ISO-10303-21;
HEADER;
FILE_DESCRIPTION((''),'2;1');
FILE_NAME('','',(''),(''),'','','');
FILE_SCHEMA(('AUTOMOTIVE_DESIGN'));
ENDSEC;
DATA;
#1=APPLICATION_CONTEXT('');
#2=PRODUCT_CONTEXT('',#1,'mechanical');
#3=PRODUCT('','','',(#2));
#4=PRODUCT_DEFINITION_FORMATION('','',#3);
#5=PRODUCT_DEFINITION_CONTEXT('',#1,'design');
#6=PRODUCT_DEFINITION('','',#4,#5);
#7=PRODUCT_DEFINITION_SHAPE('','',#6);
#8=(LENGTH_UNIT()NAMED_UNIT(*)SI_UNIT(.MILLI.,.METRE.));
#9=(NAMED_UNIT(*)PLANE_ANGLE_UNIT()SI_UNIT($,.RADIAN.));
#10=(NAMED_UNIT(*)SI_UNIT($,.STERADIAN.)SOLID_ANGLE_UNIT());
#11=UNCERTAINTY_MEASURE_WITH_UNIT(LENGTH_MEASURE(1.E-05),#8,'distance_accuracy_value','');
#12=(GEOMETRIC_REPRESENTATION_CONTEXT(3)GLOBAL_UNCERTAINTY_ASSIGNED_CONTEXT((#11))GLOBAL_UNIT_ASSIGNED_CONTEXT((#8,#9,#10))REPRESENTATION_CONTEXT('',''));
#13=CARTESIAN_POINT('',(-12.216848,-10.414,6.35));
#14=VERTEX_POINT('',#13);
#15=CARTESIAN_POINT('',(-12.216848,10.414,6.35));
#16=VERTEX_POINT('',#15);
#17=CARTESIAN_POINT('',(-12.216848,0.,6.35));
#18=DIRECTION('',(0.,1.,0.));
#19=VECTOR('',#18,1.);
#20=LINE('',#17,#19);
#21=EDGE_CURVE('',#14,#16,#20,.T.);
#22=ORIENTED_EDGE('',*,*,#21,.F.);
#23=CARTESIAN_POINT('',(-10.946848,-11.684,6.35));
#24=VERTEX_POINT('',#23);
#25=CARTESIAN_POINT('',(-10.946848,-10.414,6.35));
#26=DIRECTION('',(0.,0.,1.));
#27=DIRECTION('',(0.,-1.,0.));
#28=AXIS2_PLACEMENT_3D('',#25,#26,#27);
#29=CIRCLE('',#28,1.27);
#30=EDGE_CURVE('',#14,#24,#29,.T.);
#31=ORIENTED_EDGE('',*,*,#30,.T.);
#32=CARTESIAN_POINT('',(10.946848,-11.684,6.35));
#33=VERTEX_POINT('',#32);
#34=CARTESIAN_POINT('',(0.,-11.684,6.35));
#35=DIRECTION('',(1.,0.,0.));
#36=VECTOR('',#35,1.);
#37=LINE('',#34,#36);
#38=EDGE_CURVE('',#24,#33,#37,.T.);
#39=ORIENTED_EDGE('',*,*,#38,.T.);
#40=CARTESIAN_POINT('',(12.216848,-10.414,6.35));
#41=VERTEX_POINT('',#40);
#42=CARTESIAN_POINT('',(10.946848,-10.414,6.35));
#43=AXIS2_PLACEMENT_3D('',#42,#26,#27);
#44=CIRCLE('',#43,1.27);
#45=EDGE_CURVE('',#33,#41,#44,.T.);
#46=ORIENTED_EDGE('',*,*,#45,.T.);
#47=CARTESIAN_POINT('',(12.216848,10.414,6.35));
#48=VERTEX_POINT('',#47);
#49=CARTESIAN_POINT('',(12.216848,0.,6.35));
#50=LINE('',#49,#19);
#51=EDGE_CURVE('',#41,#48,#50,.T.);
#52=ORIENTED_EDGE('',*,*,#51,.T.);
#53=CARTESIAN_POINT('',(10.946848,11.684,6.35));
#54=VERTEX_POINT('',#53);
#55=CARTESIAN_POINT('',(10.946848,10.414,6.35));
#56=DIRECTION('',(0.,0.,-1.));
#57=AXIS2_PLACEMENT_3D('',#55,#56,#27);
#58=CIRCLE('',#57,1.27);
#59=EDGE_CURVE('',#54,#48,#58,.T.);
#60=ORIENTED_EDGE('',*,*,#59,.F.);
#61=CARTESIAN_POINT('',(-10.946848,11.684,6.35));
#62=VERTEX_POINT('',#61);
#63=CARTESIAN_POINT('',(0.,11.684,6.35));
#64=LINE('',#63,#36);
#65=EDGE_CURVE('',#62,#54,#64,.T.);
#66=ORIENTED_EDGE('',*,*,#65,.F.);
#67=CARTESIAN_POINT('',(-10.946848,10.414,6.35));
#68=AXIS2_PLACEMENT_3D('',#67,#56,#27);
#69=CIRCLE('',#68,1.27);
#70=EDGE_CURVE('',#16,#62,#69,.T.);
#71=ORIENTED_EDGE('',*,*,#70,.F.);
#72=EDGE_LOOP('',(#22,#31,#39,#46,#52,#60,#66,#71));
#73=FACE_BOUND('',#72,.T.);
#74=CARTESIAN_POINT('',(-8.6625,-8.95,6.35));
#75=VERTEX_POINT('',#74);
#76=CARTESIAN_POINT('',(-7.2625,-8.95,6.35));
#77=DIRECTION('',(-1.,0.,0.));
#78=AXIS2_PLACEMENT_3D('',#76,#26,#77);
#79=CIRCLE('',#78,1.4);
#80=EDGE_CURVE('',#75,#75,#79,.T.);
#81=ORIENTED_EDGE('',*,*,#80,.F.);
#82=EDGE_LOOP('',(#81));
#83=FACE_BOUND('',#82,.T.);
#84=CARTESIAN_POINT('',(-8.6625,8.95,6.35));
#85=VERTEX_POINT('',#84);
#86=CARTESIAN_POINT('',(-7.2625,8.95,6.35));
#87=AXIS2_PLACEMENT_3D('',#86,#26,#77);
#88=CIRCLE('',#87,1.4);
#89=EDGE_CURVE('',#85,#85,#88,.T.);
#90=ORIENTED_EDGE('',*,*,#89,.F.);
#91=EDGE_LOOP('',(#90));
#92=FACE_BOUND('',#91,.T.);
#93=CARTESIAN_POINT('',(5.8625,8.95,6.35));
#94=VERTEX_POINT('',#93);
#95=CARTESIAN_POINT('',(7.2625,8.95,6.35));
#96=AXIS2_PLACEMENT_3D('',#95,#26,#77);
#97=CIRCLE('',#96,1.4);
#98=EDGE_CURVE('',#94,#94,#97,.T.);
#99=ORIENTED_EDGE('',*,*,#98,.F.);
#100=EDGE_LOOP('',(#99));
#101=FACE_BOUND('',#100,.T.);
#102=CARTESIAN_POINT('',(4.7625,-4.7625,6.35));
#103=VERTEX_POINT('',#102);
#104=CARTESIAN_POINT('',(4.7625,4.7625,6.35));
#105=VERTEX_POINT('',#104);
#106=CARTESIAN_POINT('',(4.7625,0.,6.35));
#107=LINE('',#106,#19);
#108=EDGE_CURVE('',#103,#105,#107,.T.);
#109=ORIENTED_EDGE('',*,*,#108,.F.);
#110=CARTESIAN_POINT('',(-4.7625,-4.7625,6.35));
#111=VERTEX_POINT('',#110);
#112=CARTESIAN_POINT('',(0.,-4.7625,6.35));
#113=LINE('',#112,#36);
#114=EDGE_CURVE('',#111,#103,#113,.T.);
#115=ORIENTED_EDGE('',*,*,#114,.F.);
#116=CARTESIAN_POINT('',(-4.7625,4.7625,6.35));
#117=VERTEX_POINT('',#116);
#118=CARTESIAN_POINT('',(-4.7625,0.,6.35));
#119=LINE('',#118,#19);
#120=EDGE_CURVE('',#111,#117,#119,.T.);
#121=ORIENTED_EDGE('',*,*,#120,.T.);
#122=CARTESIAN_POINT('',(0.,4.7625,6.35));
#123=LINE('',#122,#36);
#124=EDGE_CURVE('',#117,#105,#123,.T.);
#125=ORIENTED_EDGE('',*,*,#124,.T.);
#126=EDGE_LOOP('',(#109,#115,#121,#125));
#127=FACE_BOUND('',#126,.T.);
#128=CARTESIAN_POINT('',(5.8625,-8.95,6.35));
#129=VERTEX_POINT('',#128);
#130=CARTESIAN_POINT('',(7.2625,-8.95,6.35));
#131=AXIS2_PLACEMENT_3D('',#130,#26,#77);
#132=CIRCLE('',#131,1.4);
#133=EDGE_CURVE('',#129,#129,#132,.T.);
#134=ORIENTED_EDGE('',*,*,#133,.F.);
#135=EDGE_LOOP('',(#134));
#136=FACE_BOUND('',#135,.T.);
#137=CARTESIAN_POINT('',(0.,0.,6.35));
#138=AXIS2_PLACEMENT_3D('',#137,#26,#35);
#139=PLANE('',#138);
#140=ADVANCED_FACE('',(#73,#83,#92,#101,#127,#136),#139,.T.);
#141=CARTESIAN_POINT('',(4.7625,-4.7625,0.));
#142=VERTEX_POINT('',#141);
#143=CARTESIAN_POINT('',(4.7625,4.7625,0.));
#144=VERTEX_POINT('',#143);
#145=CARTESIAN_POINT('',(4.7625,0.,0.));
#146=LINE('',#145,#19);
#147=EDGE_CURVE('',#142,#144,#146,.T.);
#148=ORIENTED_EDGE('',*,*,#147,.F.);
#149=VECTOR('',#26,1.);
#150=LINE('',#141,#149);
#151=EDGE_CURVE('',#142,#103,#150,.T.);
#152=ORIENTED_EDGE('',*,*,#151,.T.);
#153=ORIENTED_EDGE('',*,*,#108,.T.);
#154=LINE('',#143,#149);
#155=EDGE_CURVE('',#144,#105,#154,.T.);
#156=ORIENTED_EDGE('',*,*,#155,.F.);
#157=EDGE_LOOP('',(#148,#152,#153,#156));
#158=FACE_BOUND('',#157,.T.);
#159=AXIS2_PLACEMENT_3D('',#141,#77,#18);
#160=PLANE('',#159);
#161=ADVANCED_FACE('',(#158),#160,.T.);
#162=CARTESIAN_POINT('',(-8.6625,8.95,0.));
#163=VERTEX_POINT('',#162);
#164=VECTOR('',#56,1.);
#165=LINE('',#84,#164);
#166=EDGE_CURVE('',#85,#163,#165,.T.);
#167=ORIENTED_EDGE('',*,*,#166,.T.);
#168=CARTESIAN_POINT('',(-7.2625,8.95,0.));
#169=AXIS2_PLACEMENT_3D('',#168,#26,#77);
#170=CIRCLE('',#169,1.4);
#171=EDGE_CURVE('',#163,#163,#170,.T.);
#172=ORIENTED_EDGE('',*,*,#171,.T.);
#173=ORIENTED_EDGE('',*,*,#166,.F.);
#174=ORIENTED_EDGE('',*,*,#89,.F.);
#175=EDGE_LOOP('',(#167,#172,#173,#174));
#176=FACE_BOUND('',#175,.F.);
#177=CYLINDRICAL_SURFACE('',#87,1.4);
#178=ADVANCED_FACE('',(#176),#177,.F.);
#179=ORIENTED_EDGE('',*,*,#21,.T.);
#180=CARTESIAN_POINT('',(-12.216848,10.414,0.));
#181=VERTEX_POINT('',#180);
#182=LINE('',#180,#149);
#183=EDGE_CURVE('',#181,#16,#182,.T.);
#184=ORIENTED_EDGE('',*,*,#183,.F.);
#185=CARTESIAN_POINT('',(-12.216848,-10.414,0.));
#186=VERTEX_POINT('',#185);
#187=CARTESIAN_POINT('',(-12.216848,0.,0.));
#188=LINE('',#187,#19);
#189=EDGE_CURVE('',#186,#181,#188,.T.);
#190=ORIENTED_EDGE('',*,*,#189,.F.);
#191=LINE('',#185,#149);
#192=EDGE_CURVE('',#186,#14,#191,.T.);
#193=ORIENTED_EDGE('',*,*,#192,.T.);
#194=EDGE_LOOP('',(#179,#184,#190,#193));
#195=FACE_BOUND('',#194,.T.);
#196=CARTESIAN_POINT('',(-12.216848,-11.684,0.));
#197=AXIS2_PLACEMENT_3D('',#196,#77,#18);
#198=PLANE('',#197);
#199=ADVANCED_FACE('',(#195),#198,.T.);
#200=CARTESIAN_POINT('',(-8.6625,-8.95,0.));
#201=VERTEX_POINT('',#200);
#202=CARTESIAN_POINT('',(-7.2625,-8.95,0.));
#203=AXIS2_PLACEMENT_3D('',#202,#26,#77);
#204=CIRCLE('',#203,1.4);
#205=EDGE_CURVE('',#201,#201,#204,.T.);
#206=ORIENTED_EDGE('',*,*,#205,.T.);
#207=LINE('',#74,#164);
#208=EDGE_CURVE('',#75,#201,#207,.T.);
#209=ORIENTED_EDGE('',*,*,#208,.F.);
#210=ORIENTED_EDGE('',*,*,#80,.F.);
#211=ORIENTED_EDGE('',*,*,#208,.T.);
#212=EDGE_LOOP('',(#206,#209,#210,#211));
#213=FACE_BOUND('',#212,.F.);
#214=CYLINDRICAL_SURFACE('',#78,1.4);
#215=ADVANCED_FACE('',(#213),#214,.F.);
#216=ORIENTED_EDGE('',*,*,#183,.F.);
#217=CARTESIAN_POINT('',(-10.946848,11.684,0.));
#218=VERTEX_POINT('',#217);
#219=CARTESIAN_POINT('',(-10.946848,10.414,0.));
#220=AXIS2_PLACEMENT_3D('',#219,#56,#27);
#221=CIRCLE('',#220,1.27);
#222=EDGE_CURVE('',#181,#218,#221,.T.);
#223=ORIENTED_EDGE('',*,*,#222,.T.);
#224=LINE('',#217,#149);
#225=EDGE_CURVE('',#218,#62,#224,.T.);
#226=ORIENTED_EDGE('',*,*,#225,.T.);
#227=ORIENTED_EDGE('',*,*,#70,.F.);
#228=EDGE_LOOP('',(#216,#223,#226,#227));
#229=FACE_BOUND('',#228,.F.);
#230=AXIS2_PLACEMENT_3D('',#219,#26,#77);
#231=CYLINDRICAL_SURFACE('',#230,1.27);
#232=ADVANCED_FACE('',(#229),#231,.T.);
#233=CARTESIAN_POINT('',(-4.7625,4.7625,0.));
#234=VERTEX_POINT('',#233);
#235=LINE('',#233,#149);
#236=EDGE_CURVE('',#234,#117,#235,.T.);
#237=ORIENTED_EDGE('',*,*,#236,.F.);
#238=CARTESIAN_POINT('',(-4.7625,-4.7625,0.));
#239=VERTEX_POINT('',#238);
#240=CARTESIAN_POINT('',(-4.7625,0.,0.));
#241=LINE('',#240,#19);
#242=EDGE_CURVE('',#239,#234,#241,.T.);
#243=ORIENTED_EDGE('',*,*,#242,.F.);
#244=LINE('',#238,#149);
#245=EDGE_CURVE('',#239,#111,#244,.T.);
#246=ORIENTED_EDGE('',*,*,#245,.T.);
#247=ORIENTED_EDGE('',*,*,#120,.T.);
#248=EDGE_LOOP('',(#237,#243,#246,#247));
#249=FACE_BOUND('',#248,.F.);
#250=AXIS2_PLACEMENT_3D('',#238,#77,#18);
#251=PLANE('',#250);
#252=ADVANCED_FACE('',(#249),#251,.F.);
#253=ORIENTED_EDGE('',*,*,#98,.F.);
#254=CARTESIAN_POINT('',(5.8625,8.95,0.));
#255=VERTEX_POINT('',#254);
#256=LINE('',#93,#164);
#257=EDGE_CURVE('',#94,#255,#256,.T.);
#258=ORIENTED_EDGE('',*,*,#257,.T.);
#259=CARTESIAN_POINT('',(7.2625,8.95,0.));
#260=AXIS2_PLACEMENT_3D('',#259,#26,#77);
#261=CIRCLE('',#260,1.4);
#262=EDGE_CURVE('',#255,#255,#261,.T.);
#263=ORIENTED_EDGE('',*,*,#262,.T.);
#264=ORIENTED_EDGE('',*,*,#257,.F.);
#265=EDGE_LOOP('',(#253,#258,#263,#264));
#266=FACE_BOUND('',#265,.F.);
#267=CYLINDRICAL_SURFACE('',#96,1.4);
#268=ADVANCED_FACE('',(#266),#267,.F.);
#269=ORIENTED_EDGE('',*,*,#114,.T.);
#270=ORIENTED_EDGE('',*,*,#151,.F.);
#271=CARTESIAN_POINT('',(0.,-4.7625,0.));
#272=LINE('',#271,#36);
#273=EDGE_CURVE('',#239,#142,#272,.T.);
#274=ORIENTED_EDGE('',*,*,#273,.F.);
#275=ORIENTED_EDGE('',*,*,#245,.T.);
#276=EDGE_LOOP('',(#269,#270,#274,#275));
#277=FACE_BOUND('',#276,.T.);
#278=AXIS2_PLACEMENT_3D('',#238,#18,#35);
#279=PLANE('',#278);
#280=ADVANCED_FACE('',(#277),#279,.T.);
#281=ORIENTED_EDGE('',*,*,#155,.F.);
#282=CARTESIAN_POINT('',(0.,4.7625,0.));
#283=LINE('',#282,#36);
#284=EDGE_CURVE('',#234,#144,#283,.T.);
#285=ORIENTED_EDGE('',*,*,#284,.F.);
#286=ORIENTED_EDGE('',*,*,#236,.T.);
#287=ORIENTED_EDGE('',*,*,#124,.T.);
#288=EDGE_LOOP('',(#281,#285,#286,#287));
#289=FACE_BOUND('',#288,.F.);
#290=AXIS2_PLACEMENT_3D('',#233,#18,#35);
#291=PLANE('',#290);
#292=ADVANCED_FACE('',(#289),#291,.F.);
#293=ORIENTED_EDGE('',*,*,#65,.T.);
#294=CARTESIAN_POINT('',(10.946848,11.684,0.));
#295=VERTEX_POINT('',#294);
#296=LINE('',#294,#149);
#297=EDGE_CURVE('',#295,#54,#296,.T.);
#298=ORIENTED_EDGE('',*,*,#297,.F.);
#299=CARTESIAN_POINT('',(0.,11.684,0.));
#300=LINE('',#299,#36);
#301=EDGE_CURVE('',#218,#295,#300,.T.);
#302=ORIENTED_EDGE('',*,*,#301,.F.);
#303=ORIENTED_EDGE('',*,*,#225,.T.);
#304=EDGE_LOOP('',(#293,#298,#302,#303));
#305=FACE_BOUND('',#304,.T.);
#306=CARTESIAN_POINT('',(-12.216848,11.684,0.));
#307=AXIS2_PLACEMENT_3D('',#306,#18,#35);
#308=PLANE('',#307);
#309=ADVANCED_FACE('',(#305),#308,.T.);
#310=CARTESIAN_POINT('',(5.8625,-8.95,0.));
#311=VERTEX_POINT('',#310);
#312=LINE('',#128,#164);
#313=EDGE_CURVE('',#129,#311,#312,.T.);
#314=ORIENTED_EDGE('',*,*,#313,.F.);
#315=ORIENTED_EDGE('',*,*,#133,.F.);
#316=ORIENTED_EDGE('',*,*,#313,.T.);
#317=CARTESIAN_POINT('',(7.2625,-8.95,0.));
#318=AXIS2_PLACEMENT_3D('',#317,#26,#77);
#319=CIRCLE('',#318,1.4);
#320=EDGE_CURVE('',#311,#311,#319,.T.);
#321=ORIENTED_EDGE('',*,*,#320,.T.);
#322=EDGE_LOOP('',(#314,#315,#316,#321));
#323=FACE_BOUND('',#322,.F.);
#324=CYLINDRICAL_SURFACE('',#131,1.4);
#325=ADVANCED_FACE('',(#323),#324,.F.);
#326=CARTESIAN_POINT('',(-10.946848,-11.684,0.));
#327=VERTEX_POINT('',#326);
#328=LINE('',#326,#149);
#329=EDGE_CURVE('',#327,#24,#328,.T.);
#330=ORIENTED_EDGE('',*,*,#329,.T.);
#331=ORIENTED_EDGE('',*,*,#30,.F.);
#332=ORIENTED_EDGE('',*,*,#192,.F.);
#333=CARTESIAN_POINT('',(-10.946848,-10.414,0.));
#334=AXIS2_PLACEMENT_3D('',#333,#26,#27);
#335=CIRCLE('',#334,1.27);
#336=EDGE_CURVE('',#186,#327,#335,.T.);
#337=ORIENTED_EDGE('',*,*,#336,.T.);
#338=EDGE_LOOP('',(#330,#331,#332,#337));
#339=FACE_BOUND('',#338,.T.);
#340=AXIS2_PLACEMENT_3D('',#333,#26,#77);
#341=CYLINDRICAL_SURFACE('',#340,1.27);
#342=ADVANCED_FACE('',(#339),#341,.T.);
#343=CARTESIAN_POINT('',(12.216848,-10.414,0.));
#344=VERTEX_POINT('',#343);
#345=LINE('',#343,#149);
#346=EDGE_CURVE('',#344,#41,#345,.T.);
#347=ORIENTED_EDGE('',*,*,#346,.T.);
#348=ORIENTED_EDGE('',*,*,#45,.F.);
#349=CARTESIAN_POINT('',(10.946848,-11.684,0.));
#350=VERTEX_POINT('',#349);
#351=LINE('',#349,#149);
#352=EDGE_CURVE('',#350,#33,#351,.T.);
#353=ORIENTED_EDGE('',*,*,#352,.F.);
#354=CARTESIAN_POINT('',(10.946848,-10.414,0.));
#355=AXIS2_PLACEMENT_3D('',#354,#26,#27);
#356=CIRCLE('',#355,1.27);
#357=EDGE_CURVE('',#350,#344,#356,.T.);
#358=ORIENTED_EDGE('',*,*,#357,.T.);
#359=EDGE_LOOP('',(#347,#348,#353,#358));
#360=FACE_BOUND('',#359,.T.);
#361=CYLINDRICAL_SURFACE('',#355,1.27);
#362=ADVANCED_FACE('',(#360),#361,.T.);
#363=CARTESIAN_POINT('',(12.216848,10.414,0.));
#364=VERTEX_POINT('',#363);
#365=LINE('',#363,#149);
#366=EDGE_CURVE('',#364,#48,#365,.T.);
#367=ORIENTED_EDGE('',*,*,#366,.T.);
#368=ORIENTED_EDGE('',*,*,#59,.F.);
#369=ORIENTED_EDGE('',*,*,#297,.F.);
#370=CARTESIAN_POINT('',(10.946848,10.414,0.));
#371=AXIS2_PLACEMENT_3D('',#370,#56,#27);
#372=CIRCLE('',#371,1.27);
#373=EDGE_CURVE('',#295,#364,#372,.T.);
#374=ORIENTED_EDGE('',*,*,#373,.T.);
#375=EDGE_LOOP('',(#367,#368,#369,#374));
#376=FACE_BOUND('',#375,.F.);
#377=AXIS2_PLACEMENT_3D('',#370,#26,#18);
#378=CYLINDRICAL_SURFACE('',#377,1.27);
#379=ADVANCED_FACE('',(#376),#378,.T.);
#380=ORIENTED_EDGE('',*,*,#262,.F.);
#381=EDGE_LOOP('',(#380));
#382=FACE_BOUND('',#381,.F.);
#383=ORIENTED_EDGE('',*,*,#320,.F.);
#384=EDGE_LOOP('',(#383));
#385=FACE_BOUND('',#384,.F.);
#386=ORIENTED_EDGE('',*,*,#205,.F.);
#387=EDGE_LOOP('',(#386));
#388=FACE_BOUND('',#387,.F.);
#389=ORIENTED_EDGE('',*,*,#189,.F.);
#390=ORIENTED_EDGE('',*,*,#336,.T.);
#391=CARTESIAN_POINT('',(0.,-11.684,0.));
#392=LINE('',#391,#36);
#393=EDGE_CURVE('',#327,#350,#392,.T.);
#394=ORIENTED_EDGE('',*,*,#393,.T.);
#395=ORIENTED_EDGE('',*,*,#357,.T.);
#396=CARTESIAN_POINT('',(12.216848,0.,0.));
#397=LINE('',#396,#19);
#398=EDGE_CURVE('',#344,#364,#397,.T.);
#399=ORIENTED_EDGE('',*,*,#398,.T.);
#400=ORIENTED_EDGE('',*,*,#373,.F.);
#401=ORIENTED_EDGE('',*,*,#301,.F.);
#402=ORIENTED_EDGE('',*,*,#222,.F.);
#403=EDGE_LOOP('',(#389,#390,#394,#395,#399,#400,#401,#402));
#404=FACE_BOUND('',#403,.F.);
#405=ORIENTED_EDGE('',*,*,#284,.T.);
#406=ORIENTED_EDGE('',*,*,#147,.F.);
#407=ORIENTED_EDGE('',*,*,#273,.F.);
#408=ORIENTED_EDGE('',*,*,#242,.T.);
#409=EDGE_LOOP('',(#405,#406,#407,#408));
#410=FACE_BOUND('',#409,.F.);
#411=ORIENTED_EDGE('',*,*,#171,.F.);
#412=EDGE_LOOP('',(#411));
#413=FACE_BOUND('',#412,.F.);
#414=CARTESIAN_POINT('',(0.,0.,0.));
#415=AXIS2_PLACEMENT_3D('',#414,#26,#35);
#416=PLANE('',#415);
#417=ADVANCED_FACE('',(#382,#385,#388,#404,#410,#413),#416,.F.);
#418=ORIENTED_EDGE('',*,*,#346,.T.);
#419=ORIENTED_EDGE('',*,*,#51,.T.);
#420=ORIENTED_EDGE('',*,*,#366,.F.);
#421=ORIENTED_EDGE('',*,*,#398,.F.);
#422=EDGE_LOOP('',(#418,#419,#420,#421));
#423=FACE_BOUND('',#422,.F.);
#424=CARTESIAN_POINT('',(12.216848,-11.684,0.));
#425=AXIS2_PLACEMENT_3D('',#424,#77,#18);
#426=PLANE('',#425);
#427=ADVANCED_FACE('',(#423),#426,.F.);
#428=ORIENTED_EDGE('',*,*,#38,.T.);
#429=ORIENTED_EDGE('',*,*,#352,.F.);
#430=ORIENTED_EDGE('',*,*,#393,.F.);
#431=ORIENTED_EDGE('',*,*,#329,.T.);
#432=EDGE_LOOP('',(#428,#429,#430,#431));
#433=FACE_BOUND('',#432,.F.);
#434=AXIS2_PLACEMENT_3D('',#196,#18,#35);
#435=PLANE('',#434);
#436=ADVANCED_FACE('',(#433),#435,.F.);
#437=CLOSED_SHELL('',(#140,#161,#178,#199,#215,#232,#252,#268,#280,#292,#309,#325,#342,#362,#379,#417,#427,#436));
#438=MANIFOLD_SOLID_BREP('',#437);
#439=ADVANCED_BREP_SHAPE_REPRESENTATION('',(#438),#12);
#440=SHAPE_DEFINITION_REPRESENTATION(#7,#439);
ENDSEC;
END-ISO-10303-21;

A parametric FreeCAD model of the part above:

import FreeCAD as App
import Part
import Sketcher

V = App.Vector
Q = App.Units.Quantity


def edges_at(feature, points):
    """Names of the edges that pass closest to the given points."""
    edges = feature.Shape.Edges
    near = lambda p: min(range(len(edges)), key=lambda i: edges[i].distToShape(Part.Vertex(*p))[0])
    return sorted({f"Edge{near(p) + 1}" for p in points})


def add_polygon(sketch, points):
    """Adds a closed chain of lines whose ends are joined by coincident constraints."""
    first, n = sketch.GeometryCount, len(points)
    for a, b in zip(points, points[1:] + points[:1]):
        sketch.addGeometry(Part.LineSegment(App.Vector(*a, 0), App.Vector(*b, 0)), False)
    for i in range(n):
        sketch.addConstraint(Sketcher.Constraint("Coincident", first + i, 2, first + (i + 1) % n, 1))

doc = App.newDocument("Part")
body = doc.addObject("PartDesign::Body", "Body")

# Sketch on XY plane
sketch1 = body.newObject("Sketcher::SketchObject", "Sketch")
sketch1.AttachmentSupport = (doc.getObject("XY_Plane"), [""])
sketch1.MapMode = "FlatFace"
add_polygon(sketch1, [(-12, 12), (-12, -12), (12, -12), (12, 12)])  # lines 0-3
add_polygon(sketch1, [(5, -5), (-5, -5), (-5, 5), (5, 5)])  # lines 4-7
sketch1.addConstraint([
    Sketcher.Constraint("Vertical", 0),
    Sketcher.Constraint("Horizontal", 1),
    Sketcher.Constraint("Vertical", 2),
    Sketcher.Constraint("Horizontal", 3),
    Sketcher.Constraint("Horizontal", 4),
    Sketcher.Constraint("Vertical", 5),
    Sketcher.Constraint("Horizontal", 6),
    Sketcher.Constraint("Vertical", 7),
    Sketcher.Constraint("Symmetric", 0, 2, 2, 2, -1, 1),
    Sketcher.Constraint("Symmetric", 4, 2, 6, 2, -1, 1),
    Sketcher.Constraint("Equal", 6, 5),
    Sketcher.Constraint("DistanceY", 0, 2, 0, 1, Q("0.92 in")),
    Sketcher.Constraint("DistanceX", 4, 2, 4, 1, Q("0.375 in")),
    Sketcher.Constraint("DistanceX", 1, 1, 1, 2, Q("24.433697 mm")),
])
pad1 = body.newObject("PartDesign::Pad", "Pad")
pad1.Profile = sketch1
pad1.Length = Q("0.25 in")
doc.recompute()

fillet = body.newObject("PartDesign::Fillet", "Fillet")
fillet.Base = (pad1, edges_at(pad1, [
    (12.217, 11.684, 3.175),
    (-12.217, 11.684, 3.175),
    (-12.217, -11.684, 3.175),
    (12.217, -11.684, 3.175),
]))
fillet.Radius = Q("0.05 in")

# Sketch on XY plane
sketch2 = body.newObject("Sketcher::SketchObject", "Sketch001")
sketch2.AttachmentSupport = (doc.getObject("XY_Plane"), [""])
sketch2.MapMode = "FlatFace"
sketch2.AttachmentOffset = App.Placement(V(0, 0, 0.25 * 25.4), App.Rotation())
sketch2.addGeometry([
    Part.Circle(V(-7.3, 8.9, 0), V(0, 0, 1), 1.4),
    Part.Circle(V(7.3, 8.9, 0), V(0, 0, 1), 1.4),
    Part.Circle(V(7.3, -8.9, 0), V(0, 0, 1), 1.4),
    Part.Circle(V(-7.3, -8.9, 0), V(0, 0, 1), 1.4),
], False)
sketch2.addConstraint([
    Sketcher.Constraint("Equal", 0, 1),
    Sketcher.Constraint("Equal", 1, 2),
    Sketcher.Constraint("Equal", 2, 3),
    Sketcher.Constraint("Symmetric", 0, 3, 2, 3, -1, 1),
    Sketcher.Constraint("Symmetric", 1, 3, 3, 3, -1, 1),
    Sketcher.Constraint("Symmetric", 0, 3, 1, 3, -2),
    Sketcher.Constraint("Diameter", 0, Q("2.8 mm")),
    Sketcher.Constraint("DistanceX", 0, 3, -1, 1, Q("7.2625 mm")),
    Sketcher.Constraint("DistanceY", -1, 1, 0, 3, Q("8.95 mm")),
])
pocket1 = body.newObject("PartDesign::Pocket", "Pocket")
pocket1.Profile = sketch2
pocket1.Length = Q("0.25 in")

doc.recompute()
